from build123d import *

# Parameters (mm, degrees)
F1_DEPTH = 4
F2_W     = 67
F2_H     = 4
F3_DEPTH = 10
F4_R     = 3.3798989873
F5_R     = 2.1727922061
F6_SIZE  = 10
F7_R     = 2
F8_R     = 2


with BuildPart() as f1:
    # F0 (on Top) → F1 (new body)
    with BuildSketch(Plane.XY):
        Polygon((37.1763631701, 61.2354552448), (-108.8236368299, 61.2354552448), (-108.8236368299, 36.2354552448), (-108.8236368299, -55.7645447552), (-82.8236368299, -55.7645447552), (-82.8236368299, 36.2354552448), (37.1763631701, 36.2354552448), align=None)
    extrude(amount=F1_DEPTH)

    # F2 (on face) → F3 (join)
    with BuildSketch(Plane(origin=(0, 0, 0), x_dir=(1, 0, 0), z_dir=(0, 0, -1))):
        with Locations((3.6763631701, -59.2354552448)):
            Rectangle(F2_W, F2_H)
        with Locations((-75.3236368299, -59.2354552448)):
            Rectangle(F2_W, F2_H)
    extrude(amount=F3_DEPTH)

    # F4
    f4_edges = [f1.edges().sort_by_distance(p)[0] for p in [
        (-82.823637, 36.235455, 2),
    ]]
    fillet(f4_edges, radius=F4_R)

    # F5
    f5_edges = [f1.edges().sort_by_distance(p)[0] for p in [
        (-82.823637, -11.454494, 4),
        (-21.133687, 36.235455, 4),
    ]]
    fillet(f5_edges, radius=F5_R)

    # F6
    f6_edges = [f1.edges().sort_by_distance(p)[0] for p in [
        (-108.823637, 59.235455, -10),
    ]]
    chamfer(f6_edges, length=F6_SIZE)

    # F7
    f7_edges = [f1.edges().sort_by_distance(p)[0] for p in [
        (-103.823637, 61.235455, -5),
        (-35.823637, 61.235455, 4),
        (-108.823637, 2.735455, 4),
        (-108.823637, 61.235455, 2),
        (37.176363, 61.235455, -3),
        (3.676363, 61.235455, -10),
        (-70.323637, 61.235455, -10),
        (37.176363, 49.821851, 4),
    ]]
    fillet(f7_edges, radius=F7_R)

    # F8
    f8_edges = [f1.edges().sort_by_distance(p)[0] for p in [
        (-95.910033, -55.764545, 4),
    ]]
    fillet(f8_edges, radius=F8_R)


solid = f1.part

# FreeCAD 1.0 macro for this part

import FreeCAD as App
import Part
import Sketcher

V = App.Vector


def edges_at(feature, points):
    """Names of the edges that pass closest to the given points."""
    edges = feature.Shape.Edges
    near = lambda p: min(range(len(edges)), key=lambda i: edges[i].distToShape(Part.Vertex(*p))[0])
    return sorted({f"Edge{near(p) + 1}" for p in points})

doc = App.newDocument("Part")
body = doc.addObject("PartDesign::Body", "Body")

# Sketch on XY plane
sketch1 = doc.addObject("Sketcher::SketchObject", "Sketch")
body.addObject(sketch1)
sketch1.AttachmentSupport = (doc.XY_Plane, [""])
sketch1.MapMode = "FlatFace"
sketch1.addGeometry([
    Part.LineSegment(V(37, 61, 0), V(-109, 61, 0)),  # 0
    Part.LineSegment(V(-109, 61, 0), V(-109, -56, 0)),  # 1
    Part.LineSegment(V(-109, -56, 0), V(-83, -56, 0)),  # 2
    Part.LineSegment(V(-83, -56, 0), V(-83, 36, 0)),  # 3
    Part.LineSegment(V(-83, 36, 0), V(37, 36, 0)),  # 4
    Part.LineSegment(V(37, 36, 0), V(37, 61, 0)),  # 5
], False)
sketch1.addConstraint([
    Sketcher.Constraint("Coincident", 0, 2, 1, 1),
    Sketcher.Constraint("Coincident", 1, 2, 2, 1),
    Sketcher.Constraint("Coincident", 2, 2, 3, 1),
    Sketcher.Constraint("Coincident", 3, 2, 4, 1),
    Sketcher.Constraint("Coincident", 4, 2, 5, 1),
    Sketcher.Constraint("Coincident", 5, 2, 0, 1),
    Sketcher.Constraint("Horizontal", 0),
    Sketcher.Constraint("Vertical", 1),
    Sketcher.Constraint("Horizontal", 2),
    Sketcher.Constraint("Vertical", 3),
    Sketcher.Constraint("Horizontal", 4),
    Sketcher.Constraint("Vertical", 5),
    Sketcher.Constraint("DistanceX", 0, 2, 0, 1, 146.0),
    Sketcher.Constraint("DistanceX", 2, 1, 2, 2, 26.0),
    Sketcher.Constraint("DistanceY", 1, 2, 1, 1, 117.0),
    Sketcher.Constraint("DistanceY", 3, 1, 3, 2, 92.0),
    Sketcher.Constraint("DistanceX", 0, 2, -1, 1, 108.823637),
    Sketcher.Constraint("DistanceY", -1, 1, 0, 2, 61.235455),
])
pad1 = doc.addObject("PartDesign::Pad", "Pad")
body.addObject(pad1)
pad1.Profile = sketch1
pad1.Length = 4

# Sketch on XY plane
sketch2 = doc.addObject("Sketcher::SketchObject", "Sketch001")
body.addObject(sketch2)
sketch2.AttachmentSupport = (doc.XY_Plane, [""])
sketch2.MapMode = "FlatFace"
sketch2.addGeometry([
    Part.LineSegment(V(-29.8, 57.2, 0), V(-29.8, 61.2, 0)),  # 0
    Part.LineSegment(V(-29.8, 61.2, 0), V(37.2, 61.2, 0)),  # 1
    Part.LineSegment(V(37.2, 61.2, 0), V(37.2, 57.2, 0)),  # 2
    Part.LineSegment(V(37.2, 57.2, 0), V(-29.8, 57.2, 0)),  # 3
    Part.LineSegment(V(-108.8, 57.2, 0), V(-108.8, 61.2, 0)),  # 4
    Part.LineSegment(V(-108.8, 61.2, 0), V(-41.8, 61.2, 0)),  # 5
    Part.LineSegment(V(-41.8, 61.2, 0), V(-41.8, 57.2, 0)),  # 6
    Part.LineSegment(V(-41.8, 57.2, 0), V(-108.8, 57.2, 0)),  # 7
], False)
sketch2.addConstraint([
    Sketcher.Constraint("Coincident", 0, 2, 1, 1),
    Sketcher.Constraint("Coincident", 1, 2, 2, 1),
    Sketcher.Constraint("Coincident", 2, 2, 3, 1),
    Sketcher.Constraint("Coincident", 3, 2, 0, 1),
    Sketcher.Constraint("Coincident", 4, 2, 5, 1),
    Sketcher.Constraint("Coincident", 5, 2, 6, 1),
    Sketcher.Constraint("Coincident", 6, 2, 7, 1),
    Sketcher.Constraint("Coincident", 7, 2, 4, 1),
    Sketcher.Constraint("Vertical", 0),
    Sketcher.Constraint("Horizontal", 1),
    Sketcher.Constraint("Vertical", 2),
    Sketcher.Constraint("Horizontal", 3),
    Sketcher.Constraint("Vertical", 4),
    Sketcher.Constraint("Horizontal", 5),
    Sketcher.Constraint("Vertical", 6),
    Sketcher.Constraint("Horizontal", 7),
    Sketcher.Constraint("Horizontal", 1, 2, 4, 2),
    Sketcher.Constraint("Horizontal", 3, 2, 6, 2),
    Sketcher.Constraint("Equal", 3, 5),
    Sketcher.Constraint("DistanceX", 1, 1, 1, 2, 67.0),
    Sketcher.Constraint("DistanceY", 0, 1, 0, 2, 4.0),
    Sketcher.Constraint("DistanceX", 4, 2, 0, 2, 79.0),
    Sketcher.Constraint("DistanceX", 0, 2, -1, 1, 29.823637),
    Sketcher.Constraint("DistanceY", -1, 1, 0, 2, 61.235455),
])
pad2 = doc.addObject("PartDesign::Pad", "Pad001")
body.addObject(pad2)
pad2.Profile = sketch2
pad2.Length = 10
pad2.Reversed = True
doc.recompute()

fillet = doc.addObject("PartDesign::Fillet", "Fillet")
body.addObject(fillet)
fillet.Base = (pad2, edges_at(pad2, [(-82.824, 36.235, 2)]))
fillet.Radius = 3.379899
doc.recompute()

fillet2 = doc.addObject("PartDesign::Fillet", "Fillet001")
body.addObject(fillet2)
fillet2.Base = (fillet, edges_at(fillet, [(-82.824, -11.454, 4), (-21.134, 36.235, 4)]))
fillet2.Radius = 2.172792
doc.recompute()

chamfer = doc.addObject("PartDesign::Chamfer", "Chamfer")
body.addObject(chamfer)
chamfer.Base = (fillet2, edges_at(fillet2, [(-108.824, 59.235, -10)]))
chamfer.Size = 10
doc.recompute()

fillet3 = doc.addObject("PartDesign::Fillet", "Fillet002")
body.addObject(fillet3)
fillet3.Base = (chamfer, edges_at(chamfer, [
    (-103.824, 61.235, -5),
    (-35.824, 61.235, 4),
    (-108.824, 2.735, 4),
    (-108.824, 61.235, 2),
    (37.176, 61.235, -3),
    (3.676, 61.235, -10),
    (-70.324, 61.235, -10),
    (37.176, 49.822, 4),
]))
fillet3.Radius = 2
doc.recompute()

fillet4 = doc.addObject("PartDesign::Fillet", "Fillet003")
body.addObject(fillet4)
fillet4.Base = (fillet3, edges_at(fillet3, [(-95.91, -55.765, 4)]))
fillet4.Radius = 2

doc.recompute()
